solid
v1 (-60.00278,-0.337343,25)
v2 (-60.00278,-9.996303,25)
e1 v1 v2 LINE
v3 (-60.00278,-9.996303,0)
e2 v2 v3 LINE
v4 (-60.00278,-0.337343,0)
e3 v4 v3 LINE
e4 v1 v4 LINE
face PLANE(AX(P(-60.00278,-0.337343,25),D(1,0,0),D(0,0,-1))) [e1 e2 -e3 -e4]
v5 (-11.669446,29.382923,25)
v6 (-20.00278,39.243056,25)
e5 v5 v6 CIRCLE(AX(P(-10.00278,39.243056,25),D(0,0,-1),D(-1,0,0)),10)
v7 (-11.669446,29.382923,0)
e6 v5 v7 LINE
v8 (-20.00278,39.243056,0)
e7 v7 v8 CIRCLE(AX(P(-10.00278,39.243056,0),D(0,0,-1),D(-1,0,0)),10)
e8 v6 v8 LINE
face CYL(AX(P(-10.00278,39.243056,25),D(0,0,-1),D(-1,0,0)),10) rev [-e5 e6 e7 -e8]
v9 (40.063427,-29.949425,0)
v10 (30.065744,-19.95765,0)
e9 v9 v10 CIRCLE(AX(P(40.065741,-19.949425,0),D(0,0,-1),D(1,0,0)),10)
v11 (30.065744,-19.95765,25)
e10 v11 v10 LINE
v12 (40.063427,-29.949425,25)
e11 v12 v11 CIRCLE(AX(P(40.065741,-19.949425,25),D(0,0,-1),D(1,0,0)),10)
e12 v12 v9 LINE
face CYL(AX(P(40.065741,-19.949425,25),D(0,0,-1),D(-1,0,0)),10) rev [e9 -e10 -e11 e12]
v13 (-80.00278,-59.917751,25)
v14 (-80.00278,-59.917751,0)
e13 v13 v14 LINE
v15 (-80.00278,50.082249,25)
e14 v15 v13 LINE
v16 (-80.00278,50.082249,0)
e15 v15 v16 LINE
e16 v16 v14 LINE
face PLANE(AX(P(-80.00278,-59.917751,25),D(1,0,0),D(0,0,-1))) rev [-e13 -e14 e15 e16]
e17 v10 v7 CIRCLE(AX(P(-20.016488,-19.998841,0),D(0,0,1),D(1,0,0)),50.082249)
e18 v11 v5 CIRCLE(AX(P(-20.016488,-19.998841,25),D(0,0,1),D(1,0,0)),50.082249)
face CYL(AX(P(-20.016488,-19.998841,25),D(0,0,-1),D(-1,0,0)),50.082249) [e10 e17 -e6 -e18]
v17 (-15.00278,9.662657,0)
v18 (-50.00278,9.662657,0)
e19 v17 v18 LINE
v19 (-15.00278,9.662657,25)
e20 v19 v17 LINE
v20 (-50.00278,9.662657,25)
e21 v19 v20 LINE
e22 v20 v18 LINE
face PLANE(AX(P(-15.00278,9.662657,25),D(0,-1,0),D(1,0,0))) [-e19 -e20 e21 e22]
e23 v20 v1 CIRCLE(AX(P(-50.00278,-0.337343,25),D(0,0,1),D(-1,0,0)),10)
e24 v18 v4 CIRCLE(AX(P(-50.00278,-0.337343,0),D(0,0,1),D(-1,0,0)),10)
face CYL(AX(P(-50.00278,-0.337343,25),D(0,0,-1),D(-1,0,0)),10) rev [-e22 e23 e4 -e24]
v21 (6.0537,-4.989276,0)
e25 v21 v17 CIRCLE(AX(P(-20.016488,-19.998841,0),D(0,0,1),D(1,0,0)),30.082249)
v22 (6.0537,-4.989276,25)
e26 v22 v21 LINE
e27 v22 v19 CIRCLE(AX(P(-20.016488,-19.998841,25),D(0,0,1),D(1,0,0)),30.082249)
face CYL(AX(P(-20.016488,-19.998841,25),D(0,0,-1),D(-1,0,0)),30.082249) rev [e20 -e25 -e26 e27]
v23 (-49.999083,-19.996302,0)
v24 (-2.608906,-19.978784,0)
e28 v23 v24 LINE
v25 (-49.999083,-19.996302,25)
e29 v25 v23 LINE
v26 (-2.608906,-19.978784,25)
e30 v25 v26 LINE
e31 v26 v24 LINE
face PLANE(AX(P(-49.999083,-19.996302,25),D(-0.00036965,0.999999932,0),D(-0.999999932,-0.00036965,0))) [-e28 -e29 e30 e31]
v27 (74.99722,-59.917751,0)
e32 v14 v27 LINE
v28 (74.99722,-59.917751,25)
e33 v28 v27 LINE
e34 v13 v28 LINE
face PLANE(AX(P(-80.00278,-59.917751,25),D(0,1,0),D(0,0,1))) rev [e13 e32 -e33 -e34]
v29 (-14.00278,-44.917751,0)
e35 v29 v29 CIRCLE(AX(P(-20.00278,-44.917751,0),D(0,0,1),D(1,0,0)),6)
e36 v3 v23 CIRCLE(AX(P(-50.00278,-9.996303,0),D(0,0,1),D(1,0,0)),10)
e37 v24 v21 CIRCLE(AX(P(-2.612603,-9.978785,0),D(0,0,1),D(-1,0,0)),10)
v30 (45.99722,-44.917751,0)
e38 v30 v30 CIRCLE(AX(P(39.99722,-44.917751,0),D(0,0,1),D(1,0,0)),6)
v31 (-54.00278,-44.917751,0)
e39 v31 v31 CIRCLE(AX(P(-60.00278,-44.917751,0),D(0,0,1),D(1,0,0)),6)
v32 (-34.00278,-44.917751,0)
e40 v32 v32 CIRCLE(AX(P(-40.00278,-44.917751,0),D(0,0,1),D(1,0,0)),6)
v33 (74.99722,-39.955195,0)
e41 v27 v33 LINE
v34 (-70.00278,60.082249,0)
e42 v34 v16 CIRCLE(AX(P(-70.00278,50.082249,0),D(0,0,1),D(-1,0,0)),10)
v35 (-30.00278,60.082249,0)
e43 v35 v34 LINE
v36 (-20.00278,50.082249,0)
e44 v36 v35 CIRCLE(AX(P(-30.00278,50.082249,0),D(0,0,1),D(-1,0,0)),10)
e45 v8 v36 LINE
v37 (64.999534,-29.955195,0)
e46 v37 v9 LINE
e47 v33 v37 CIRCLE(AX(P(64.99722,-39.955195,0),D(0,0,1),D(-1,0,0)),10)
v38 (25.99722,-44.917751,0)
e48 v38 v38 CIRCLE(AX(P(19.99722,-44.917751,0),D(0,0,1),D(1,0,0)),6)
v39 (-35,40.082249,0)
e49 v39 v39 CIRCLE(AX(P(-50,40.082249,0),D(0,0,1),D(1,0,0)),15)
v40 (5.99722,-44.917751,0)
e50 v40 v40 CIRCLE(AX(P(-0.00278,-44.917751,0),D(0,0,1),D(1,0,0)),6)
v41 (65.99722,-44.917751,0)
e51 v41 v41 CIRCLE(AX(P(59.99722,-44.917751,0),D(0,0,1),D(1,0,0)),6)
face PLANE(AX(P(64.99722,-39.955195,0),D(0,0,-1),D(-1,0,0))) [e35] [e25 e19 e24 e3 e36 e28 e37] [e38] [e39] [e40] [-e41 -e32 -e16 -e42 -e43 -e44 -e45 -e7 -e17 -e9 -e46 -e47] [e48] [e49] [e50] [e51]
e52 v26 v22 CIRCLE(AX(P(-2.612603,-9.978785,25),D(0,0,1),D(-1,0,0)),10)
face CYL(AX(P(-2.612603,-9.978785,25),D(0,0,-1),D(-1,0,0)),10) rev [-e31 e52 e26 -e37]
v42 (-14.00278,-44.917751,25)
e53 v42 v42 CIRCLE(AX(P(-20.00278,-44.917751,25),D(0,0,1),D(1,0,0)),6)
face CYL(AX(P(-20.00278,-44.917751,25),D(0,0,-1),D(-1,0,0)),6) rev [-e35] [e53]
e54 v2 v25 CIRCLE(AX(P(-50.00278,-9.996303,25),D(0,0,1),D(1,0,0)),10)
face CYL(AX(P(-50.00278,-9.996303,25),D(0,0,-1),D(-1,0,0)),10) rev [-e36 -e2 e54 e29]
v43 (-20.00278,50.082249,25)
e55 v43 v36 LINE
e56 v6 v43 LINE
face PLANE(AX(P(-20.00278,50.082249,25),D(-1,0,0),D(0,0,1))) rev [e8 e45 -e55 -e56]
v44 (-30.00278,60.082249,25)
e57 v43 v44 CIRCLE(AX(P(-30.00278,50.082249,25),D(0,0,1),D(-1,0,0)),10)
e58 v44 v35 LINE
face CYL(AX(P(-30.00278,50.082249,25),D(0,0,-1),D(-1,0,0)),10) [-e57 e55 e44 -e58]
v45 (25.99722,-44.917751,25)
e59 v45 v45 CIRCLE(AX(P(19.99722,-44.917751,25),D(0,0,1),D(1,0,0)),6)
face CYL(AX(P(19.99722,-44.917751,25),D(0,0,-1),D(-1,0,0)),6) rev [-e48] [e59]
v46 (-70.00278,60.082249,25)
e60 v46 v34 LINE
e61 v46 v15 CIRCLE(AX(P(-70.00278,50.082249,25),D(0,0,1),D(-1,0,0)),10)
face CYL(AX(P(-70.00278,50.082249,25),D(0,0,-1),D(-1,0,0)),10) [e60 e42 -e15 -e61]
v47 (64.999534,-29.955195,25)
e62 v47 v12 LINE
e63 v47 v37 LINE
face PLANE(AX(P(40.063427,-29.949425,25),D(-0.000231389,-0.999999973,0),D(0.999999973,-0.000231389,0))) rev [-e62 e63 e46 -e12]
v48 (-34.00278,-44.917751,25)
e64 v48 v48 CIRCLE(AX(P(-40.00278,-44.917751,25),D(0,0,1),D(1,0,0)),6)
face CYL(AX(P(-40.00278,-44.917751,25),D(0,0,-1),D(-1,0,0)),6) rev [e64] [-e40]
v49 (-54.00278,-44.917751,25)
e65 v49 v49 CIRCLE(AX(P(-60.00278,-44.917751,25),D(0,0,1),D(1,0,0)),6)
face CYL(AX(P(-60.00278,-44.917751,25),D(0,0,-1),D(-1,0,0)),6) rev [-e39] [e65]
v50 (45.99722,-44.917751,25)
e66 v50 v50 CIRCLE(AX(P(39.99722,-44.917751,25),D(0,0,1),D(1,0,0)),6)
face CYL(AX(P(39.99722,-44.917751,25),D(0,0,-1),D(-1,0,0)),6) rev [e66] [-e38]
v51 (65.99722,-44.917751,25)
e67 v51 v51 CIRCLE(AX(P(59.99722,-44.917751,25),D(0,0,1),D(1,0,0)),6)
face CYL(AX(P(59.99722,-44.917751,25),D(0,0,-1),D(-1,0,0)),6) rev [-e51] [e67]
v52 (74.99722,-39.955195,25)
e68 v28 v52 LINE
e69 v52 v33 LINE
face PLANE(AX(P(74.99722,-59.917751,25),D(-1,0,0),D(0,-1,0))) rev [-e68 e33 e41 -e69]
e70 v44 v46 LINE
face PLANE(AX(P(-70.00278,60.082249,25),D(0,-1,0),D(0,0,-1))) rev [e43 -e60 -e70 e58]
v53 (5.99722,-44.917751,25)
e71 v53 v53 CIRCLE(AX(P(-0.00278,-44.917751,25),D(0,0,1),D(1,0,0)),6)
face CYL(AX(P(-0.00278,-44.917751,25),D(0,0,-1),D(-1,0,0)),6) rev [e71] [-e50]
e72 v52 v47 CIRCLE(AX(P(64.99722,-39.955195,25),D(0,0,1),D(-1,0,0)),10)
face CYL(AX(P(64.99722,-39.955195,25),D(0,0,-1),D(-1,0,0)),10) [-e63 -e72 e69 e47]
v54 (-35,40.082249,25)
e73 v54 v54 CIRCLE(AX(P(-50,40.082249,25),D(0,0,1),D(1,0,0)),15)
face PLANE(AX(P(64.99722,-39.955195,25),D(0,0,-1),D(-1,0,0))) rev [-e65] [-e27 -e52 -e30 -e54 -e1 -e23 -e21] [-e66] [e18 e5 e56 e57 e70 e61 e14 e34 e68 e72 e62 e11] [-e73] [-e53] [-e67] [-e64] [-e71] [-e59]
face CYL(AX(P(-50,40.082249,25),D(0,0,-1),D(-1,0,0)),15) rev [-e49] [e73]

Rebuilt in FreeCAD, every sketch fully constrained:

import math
import FreeCAD as App
import Part
import Sketcher
from FreeCAD import Vector

doc = App.newDocument("Part")
params = doc.addObject("Spreadsheet::Sheet", "Params")
for row, (alias, value) in enumerate([
    ("sketch1_diameter", "12 mm"),
    ("sketch1_diameter2", "30 mm"),
    ("sketch1_radius", "10 mm"),
    ("sketch1_width", "40 mm"),
    ("sketch1_width2", "155 mm"),
    ("pad1_length", "25 mm"),
], start=1):
    params.set(f"A{row}", alias)
    params.set(f"B{row}", "=" + value)
    params.setAlias(f"B{row}", alias)

body = doc.addObject("PartDesign::Body", "Body")

# Sketch on XY plane
sketch1 = body.newObject("Sketcher::SketchObject", "Sketch")
sketch1.AttachmentSupport = (doc.getObject("XY_Plane"), [""])
sketch1.MapMode = "FlatFace"
sketch1.addGeometry([
    Part.LineSegment(Vector(64.999534, -29.955195, 0), Vector(40.063427, -29.949425, 0)),  # 0
    Part.ArcOfCircle(Part.Circle(Vector(40.065741, -19.949425, 0), Vector(0, 0, 1), 10), math.radians(-179.952876), math.radians(-90.013258)),  # 1
    Part.ArcOfCircle(Part.Circle(Vector(-20.016488, -19.998841, 0), Vector(0, 0, 1), 50.082249), math.radians(0.047124), math.radians(80.405932)),  # 2
    Part.ArcOfCircle(Part.Circle(Vector(-10.00278, 39.243056, 0), Vector(0, 0, 1), 10), math.radians(180), math.radians(260.405932)),  # 3
    Part.LineSegment(Vector(-20.00278, 39.243056, 0), Vector(-20.00278, 50.082249, 0)),  # 4
    Part.ArcOfCircle(Part.Circle(Vector(-30.00278, 50.082249, 0), Vector(0, 0, 1), 10), math.radians(0), math.radians(90)),  # 5
    Part.LineSegment(Vector(-30.00278, 60.082249, 0), Vector(-70.00278, 60.082249, 0)),  # 6
    Part.ArcOfCircle(Part.Circle(Vector(-70.00278, 50.082249, 0), Vector(0, 0, 1), 10), math.radians(90), math.radians(180)),  # 7
    Part.LineSegment(Vector(-80.00278, 50.082249, 0), Vector(-80.00278, -59.917751, 0)),  # 8
    Part.LineSegment(Vector(-80.00278, -59.917751, 0), Vector(74.99722, -59.917751, 0)),  # 9
    Part.LineSegment(Vector(74.99722, -59.917751, 0), Vector(74.99722, -39.955195, 0)),  # 10
    Part.ArcOfCircle(Part.Circle(Vector(64.99722, -39.955195, 0), Vector(0, 0, 1), 10), math.radians(0), math.radians(89.986742)),  # 11
    Part.Circle(Vector(59.99722, -44.917751, 0), Vector(0, 0, 1), 6),  # 12
    Part.Circle(Vector(39.99722, -44.917751, 0), Vector(0, 0, 1), 6),  # 13
    Part.Circle(Vector(19.99722, -44.917751, 0), Vector(0, 0, 1), 6),  # 14
    Part.Circle(Vector(-0.00278, -44.917751, 0), Vector(0, 0, 1), 6),  # 15
    Part.Circle(Vector(-20.00278, -44.917751, 0), Vector(0, 0, 1), 6),  # 16
    Part.Circle(Vector(-40.00278, -44.917751, 0), Vector(0, 0, 1), 6),  # 17
    Part.Circle(Vector(-60.00278, -44.917751, 0), Vector(0, 0, 1), 6),  # 18
    Part.ArcOfCircle(Part.Circle(Vector(-20.016488, -19.998841, 0), Vector(0, 0, 1), 30.082249), math.radians(29.930614), math.radians(80.405932)),  # 19
    Part.ArcOfCircle(Part.Circle(Vector(-2.612603, -9.978785, 0), Vector(0, 0, 1), 10), math.radians(-89.978821), math.radians(29.930614)),  # 20
    Part.LineSegment(Vector(-2.608906, -19.978784, 0), Vector(-49.999083, -19.996302, 0)),  # 21
    Part.ArcOfCircle(Part.Circle(Vector(-50.00278, -9.996303, 0), Vector(0, 0, 1), 10), math.radians(180), math.radians(270.021179)),  # 22
    Part.LineSegment(Vector(-60.00278, -9.996303, 0), Vector(-60.00278, -0.337343, 0)),  # 23
    Part.ArcOfCircle(Part.Circle(Vector(-50.00278, -0.337343, 0), Vector(0, 0, 1), 10), math.radians(90), math.radians(180)),  # 24
    Part.LineSegment(Vector(-50.00278, 9.662657, 0), Vector(-15.00278, 9.662657, 0)),  # 25
    Part.Circle(Vector(-50, 40.082249, 0), Vector(0, 0, 1), 15),  # 26
], False)
sketch1.addConstraint([
    Sketcher.Constraint("Tangent", 0, 2, 1, 2),
    Sketcher.Constraint("Tangent", 1, 1, 2, 1),
    Sketcher.Constraint("Tangent", 2, 2, 3, 2),
    Sketcher.Constraint("Tangent", 3, 1, 4, 1),
    Sketcher.Constraint("Tangent", 4, 2, 5, 1),
    Sketcher.Constraint("Tangent", 5, 2, 6, 1),
    Sketcher.Constraint("Tangent", 6, 2, 7, 1),
    Sketcher.Constraint("Tangent", 7, 2, 8, 1),
    Sketcher.Constraint("Coincident", 8, 2, 9, 1),
    Sketcher.Constraint("Coincident", 9, 2, 10, 1),
    Sketcher.Constraint("Tangent", 10, 2, 11, 1),
    Sketcher.Constraint("Tangent", 11, 2, 0, 1),
    Sketcher.Constraint("Tangent", 19, 1, 20, 2),
    Sketcher.Constraint("Tangent", 20, 1, 21, 1),
    Sketcher.Constraint("Tangent", 21, 2, 22, 2),
    Sketcher.Constraint("Tangent", 22, 1, 23, 1),
    Sketcher.Constraint("Tangent", 23, 2, 24, 2),
    Sketcher.Constraint("Tangent", 24, 1, 25, 1),
    Sketcher.Constraint("Coincident", 25, 2, 19, 2),
    Sketcher.Constraint("Vertical", 4),
    Sketcher.Constraint("Horizontal", 6),
    Sketcher.Constraint("Vertical", 8),
    Sketcher.Constraint("Horizontal", 9),
    Sketcher.Constraint("Vertical", 10),
    Sketcher.Constraint("Vertical", 23),
    Sketcher.Constraint("Horizontal", 25),
    Sketcher.Constraint("Coincident", 19, 3, 2, 3),
    Sketcher.Constraint("Equal", 1, 3),
    Sketcher.Constraint("Equal", 3, 5),
    Sketcher.Constraint("Equal", 5, 7),
    Sketcher.Constraint("Equal", 7, 11),
    Sketcher.Constraint("Equal", 12, 13),
    Sketcher.Constraint("Equal", 13, 14),
    Sketcher.Constraint("Equal", 14, 15),
    Sketcher.Constraint("Equal", 15, 16),
    Sketcher.Constraint("Equal", 16, 17),
    Sketcher.Constraint("Equal", 17, 18),
    Sketcher.Constraint("Equal", 11, 20),
    Sketcher.Constraint("Equal", 20, 22),
    Sketcher.Constraint("Equal", 22, 24),
    Sketcher.Constraint("Horizontal", 12, 3, 13, 3),
    Sketcher.Constraint("Horizontal", 13, 3, 14, 3),
    Sketcher.Constraint("Horizontal", 14, 3, 15, 3),
    Sketcher.Constraint("Horizontal", 15, 3, 16, 3),
    Sketcher.Constraint("Horizontal", 16, 3, 17, 3),
    Sketcher.Constraint("Horizontal", 17, 3, 18, 3),
    Sketcher.Constraint("Vertical", 16, 3, 3, 1),
    Sketcher.Constraint("Vertical", 18, 3, 22, 1),
    Sketcher.Constraint("Diameter", 12, 12.0),
    Sketcher.Constraint("Diameter", 26, 30.0),
    Sketcher.Constraint("Radius", 1, 10.0),
    Sketcher.Constraint("DistanceX", 6, 2, 6, 1, 40.0),
    Sketcher.Constraint("DistanceX", 9, 1, 9, 2, 155.0),
    Sketcher.Constraint("DistanceX", 25, 1, 25, 2, 35.0),
    Sketcher.Constraint("DistanceY", 8, 2, 8, 1, 110.0),
    Sketcher.Constraint("DistanceX", 26, 3, -1, 1, 50.0),
    Sketcher.Constraint("DistanceX", 12, 3, 11, 3, 5.0),
    Sketcher.Constraint("DistanceY", 12, 3, 5, 3, 95.0),
    Sketcher.Constraint("DistanceX", 13, 3, 12, 3, 20.0),
    Sketcher.Constraint("DistanceX", 14, 3, 13, 3, 20.0),
    Sketcher.Constraint("DistanceX", 15, 3, 14, 3, 20.0),
    Sketcher.Constraint("DistanceX", 17, 3, 16, 3, 20.0),
    Sketcher.Constraint("DistanceX", 18, 3, 17, 3, 20.0),
    Sketcher.Constraint("DistanceY", 26, 3, 5, 3, 10.0),
    Sketcher.Constraint("Radius", 2, 50.082249),
    Sketcher.Constraint("Radius", 19, 30.082249),
    Sketcher.Constraint("DistanceY", 23, 1, 23, 2, 9.65896),
    Sketcher.Constraint("DistanceX", -1, 1, 19, 1, 6.0537),
    Sketcher.Constraint("DistanceY", 13, 3, 1, 1, 24.960101),
    Sketcher.Constraint("Distance", 21, 47.39018),
    Sketcher.Constraint("DistanceY", 4, 1, 4, 2, 10.839193),
    Sketcher.Constraint("DistanceY", 10, 1, 10, 2, 19.962556),
    Sketcher.Constraint("DistanceX", -1, 1, 1, 3, 40.065741),
    Sketcher.Constraint("DistanceY", 2, 3, -1, 1, 19.998841),
])
sketch1.setExpression("Constraints[48]", "Params.sketch1_diameter")
sketch1.setExpression("Constraints[49]", "Params.sketch1_diameter2")
sketch1.setExpression("Constraints[50]", "Params.sketch1_radius")
sketch1.setExpression("Constraints[51]", "Params.sketch1_width")
sketch1.setExpression("Constraints[52]", "Params.sketch1_width2")
pad1 = body.newObject("PartDesign::Pad", "Pad")
pad1.Profile = sketch1
pad1.setExpression("Length", "Params.pad1_length")

doc.recompute()
